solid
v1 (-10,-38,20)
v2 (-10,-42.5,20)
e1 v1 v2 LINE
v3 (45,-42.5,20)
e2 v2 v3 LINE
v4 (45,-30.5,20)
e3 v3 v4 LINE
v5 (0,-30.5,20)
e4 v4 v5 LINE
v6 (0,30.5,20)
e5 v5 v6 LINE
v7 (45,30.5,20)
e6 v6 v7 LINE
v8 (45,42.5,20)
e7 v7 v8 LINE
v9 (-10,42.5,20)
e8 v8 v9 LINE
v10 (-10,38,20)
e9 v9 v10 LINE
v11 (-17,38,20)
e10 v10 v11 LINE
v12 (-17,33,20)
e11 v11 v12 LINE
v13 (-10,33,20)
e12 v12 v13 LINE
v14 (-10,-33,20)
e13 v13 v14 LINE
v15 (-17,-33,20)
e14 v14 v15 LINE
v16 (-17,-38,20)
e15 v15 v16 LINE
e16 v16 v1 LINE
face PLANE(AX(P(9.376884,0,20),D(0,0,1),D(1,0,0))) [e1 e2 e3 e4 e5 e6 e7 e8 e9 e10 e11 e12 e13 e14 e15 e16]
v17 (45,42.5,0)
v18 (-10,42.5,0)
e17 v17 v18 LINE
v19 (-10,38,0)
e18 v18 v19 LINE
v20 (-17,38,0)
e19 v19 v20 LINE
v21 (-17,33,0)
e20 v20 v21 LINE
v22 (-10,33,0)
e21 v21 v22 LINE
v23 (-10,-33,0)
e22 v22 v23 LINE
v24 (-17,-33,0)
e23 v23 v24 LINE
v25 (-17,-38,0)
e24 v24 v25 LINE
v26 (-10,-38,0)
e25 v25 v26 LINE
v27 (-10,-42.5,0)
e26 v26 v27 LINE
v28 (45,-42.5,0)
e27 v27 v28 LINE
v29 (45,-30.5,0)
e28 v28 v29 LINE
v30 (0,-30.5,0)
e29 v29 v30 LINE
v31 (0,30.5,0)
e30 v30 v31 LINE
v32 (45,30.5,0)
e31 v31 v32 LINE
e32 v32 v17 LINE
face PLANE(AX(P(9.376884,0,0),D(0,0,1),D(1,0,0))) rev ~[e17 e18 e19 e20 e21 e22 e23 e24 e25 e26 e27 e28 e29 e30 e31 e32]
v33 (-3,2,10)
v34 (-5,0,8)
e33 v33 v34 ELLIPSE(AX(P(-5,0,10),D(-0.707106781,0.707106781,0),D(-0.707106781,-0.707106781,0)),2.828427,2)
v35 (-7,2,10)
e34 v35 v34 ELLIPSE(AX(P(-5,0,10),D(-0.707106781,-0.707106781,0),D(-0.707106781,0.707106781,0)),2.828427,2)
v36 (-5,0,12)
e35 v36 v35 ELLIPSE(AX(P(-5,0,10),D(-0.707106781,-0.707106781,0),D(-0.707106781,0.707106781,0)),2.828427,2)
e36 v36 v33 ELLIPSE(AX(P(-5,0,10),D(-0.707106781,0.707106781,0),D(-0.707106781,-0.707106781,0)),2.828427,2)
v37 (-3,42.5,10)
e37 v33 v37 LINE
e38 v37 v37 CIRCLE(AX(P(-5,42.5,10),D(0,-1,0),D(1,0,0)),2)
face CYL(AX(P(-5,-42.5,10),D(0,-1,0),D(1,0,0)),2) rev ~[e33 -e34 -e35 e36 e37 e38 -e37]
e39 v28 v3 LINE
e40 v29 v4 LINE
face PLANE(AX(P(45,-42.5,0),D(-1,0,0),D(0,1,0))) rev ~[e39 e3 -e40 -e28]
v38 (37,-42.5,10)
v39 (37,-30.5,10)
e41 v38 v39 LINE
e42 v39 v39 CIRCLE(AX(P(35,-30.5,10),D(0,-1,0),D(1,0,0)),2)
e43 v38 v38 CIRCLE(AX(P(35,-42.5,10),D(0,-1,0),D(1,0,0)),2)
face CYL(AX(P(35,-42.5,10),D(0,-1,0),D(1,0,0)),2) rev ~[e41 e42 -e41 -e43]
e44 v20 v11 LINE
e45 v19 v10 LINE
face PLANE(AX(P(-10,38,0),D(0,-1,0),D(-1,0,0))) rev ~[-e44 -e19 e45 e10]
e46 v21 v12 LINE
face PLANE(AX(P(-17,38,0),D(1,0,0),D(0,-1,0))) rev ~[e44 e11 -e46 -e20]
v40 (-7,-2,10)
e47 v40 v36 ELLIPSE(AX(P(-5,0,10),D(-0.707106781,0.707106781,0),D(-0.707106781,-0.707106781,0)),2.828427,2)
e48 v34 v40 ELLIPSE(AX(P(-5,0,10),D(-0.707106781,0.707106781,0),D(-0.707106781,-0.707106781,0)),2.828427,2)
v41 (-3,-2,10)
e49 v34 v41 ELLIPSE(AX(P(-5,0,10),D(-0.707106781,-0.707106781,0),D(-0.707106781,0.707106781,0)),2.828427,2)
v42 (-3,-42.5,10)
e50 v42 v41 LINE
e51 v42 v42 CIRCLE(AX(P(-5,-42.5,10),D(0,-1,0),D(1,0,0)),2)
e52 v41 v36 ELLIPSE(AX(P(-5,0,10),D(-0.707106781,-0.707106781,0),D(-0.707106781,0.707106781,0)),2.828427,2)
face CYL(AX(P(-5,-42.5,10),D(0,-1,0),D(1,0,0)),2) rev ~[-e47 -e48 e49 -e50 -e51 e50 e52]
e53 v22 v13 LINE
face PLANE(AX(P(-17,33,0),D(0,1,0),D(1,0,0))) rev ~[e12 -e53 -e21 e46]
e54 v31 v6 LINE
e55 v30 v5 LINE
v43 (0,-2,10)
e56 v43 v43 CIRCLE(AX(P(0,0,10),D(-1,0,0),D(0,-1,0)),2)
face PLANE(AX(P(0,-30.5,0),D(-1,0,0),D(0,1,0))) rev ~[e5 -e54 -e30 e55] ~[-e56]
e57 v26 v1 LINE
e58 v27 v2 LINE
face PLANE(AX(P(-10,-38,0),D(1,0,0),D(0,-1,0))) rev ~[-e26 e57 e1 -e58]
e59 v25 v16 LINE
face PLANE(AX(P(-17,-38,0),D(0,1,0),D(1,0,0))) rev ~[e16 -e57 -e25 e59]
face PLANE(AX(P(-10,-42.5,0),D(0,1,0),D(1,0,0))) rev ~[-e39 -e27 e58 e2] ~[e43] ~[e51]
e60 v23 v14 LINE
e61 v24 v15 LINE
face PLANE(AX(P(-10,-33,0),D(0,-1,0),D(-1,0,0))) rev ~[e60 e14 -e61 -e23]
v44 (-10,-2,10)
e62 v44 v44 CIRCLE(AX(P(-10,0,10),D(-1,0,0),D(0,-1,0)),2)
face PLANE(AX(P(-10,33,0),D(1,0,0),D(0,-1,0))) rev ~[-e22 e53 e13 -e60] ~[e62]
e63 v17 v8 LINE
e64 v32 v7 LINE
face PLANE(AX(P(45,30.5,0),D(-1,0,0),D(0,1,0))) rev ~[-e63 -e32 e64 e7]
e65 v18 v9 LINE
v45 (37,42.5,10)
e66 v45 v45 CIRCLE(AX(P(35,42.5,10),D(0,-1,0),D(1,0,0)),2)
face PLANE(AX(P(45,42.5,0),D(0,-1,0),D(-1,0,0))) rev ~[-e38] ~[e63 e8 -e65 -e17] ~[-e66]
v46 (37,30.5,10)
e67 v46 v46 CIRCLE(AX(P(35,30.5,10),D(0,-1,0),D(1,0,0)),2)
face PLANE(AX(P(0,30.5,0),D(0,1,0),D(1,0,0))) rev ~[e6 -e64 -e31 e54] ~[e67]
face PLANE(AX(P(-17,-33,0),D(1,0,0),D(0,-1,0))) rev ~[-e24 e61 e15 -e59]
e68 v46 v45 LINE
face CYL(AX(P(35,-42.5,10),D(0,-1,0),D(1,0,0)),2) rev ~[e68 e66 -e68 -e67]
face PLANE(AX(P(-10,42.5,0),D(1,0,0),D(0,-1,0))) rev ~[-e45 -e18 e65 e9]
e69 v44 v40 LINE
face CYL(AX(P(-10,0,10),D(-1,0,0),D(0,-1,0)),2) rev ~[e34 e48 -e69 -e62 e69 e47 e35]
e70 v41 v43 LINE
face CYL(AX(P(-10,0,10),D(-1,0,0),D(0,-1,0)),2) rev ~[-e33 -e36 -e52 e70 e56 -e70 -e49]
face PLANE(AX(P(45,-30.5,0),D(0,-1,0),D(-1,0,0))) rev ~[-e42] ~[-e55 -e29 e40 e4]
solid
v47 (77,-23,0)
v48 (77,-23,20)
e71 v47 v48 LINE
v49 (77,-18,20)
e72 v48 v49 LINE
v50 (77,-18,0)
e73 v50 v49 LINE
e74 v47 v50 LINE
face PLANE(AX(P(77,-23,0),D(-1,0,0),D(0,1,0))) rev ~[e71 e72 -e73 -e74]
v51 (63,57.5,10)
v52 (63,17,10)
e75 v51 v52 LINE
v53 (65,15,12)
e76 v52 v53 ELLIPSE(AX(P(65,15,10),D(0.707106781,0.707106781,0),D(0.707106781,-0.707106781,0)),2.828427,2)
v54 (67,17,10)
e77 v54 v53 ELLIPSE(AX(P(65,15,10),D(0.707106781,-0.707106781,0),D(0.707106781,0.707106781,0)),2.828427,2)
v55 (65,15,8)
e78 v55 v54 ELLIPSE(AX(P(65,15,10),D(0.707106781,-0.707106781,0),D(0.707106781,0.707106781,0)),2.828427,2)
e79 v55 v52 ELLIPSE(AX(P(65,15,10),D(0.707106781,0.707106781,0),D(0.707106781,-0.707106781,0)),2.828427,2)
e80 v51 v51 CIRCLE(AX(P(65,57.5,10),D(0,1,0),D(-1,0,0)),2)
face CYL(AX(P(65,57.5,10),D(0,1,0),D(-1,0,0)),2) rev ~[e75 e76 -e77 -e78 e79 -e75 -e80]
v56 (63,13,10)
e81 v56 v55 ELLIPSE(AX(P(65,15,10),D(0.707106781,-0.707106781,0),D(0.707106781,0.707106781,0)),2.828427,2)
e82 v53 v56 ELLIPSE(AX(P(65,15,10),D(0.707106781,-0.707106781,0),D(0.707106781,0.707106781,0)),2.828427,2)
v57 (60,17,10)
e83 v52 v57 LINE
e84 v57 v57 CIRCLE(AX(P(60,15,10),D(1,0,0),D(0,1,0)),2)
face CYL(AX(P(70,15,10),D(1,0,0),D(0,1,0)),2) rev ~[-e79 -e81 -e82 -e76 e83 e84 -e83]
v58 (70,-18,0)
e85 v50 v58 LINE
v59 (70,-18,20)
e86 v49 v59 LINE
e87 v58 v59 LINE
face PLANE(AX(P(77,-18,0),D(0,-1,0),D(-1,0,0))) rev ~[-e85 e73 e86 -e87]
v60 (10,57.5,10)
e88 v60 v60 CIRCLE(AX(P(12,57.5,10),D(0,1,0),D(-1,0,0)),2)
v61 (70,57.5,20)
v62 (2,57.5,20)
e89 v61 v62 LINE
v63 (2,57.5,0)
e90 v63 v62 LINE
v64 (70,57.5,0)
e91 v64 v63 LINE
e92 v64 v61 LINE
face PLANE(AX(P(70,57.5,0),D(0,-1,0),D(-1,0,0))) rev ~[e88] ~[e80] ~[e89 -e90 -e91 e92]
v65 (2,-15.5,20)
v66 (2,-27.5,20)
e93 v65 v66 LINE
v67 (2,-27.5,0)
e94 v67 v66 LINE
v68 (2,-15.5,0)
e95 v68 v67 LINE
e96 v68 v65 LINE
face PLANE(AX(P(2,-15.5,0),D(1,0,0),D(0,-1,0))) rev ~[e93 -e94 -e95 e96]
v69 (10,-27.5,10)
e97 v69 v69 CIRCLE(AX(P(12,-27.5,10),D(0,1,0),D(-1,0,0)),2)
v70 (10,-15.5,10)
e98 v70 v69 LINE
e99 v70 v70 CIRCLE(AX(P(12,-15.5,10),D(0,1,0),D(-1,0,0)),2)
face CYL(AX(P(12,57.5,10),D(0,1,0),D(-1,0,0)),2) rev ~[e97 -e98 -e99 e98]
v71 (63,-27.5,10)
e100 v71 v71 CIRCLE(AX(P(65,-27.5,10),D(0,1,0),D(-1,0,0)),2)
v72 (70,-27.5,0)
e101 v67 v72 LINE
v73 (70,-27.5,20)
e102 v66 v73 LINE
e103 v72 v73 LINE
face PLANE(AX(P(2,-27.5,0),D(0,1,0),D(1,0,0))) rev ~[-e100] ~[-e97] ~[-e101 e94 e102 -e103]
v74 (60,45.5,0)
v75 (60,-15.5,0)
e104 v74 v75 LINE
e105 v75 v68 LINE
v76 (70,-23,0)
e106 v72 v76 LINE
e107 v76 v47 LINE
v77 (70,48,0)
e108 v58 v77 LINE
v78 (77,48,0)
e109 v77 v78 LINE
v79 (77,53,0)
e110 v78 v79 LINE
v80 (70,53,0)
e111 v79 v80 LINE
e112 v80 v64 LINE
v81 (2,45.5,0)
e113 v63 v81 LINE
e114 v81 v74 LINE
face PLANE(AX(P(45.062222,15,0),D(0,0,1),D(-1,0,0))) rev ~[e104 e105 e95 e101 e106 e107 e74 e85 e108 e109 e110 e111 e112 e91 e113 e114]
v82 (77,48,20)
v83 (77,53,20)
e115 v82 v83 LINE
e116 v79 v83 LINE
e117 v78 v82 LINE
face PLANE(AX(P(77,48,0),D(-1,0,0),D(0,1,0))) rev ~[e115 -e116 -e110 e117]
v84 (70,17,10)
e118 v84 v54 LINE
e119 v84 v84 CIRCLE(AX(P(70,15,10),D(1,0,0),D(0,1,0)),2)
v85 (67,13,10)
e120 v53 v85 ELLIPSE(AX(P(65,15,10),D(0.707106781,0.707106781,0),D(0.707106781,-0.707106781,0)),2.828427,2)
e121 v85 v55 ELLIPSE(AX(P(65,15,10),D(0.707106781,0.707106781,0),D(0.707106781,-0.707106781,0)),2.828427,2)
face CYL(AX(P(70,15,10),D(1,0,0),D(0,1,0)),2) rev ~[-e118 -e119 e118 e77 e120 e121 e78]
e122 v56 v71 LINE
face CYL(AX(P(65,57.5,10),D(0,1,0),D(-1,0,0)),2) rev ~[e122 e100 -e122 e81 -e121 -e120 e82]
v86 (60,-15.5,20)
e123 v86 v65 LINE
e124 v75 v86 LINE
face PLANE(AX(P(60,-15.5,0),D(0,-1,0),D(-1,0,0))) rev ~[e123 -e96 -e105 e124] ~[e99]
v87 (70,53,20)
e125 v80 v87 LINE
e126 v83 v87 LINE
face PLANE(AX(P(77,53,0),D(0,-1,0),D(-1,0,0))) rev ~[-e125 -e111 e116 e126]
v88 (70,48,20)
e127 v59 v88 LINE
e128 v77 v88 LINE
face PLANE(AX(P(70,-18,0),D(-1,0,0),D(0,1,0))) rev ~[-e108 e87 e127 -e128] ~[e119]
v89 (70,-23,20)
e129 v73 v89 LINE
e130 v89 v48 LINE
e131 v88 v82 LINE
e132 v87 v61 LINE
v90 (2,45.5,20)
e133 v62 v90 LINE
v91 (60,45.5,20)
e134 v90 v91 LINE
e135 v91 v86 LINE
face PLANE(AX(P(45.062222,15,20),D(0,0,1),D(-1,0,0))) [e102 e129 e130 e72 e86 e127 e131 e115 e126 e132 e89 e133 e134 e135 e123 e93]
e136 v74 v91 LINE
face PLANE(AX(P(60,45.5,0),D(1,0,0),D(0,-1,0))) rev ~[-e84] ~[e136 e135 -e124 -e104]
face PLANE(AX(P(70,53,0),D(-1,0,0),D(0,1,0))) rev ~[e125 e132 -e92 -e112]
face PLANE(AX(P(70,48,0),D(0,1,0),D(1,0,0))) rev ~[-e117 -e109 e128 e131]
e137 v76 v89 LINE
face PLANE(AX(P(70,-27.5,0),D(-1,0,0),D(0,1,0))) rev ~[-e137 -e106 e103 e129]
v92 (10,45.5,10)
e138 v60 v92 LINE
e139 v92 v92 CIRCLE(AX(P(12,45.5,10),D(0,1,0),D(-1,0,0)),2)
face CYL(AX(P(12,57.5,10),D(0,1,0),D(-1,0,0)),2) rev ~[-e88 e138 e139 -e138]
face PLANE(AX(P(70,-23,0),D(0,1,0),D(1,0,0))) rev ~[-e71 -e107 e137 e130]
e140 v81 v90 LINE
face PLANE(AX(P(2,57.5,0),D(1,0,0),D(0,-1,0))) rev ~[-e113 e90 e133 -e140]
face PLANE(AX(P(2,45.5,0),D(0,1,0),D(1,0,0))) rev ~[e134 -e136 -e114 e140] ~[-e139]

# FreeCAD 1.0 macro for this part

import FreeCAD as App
import Part
import Sketcher


def add_polygon(sketch, points):
    """Adds a closed chain of lines whose ends are joined by coincident constraints."""
    first, n = sketch.GeometryCount, len(points)
    for a, b in zip(points, points[1:] + points[:1]):
        sketch.addGeometry(Part.LineSegment(App.Vector(*a, 0), App.Vector(*b, 0)), False)
    for i in range(n):
        sketch.addConstraint(Sketcher.Constraint("Coincident", first + i, 2, first + (i + 1) % n, 1))

doc = App.newDocument("Part")
body = doc.addObject("PartDesign::Body", "Body")

# Sketch on XY plane
sketch1 = body.newObject("Sketcher::SketchObject", "Sketch")
sketch1.AttachmentSupport = (doc.getObject("XY_Plane"), [""])
sketch1.MapMode = "FlatFace"
add_polygon(sketch1, [(-10, -42.5), (45, -42.5), (45, -30.5), (0, -30.5), (0, 30.5), (45, 30.5), (45, 42.5), (-10, 42.5), (-10, 38), (-17, 38), (-17, 33), (-10, 33), (-10, -33), (-17, -33), (-17, -38), (-10, -38)])  # lines 0-15
sketch1.addConstraint(Sketcher.Constraint("Horizontal", 0))
sketch1.addConstraint(Sketcher.Constraint("Vertical", 1))
sketch1.addConstraint(Sketcher.Constraint("Horizontal", 2))
sketch1.addConstraint(Sketcher.Constraint("Vertical", 3))
sketch1.addConstraint(Sketcher.Constraint("Horizontal", 4))
sketch1.addConstraint(Sketcher.Constraint("Vertical", 5))
sketch1.addConstraint(Sketcher.Constraint("Horizontal", 6))
sketch1.addConstraint(Sketcher.Constraint("Vertical", 7))
sketch1.addConstraint(Sketcher.Constraint("Horizontal", 8))
sketch1.addConstraint(Sketcher.Constraint("Vertical", 9))
sketch1.addConstraint(Sketcher.Constraint("Horizontal", 10))
sketch1.addConstraint(Sketcher.Constraint("Vertical", 11))
sketch1.addConstraint(Sketcher.Constraint("Horizontal", 12))
sketch1.addConstraint(Sketcher.Constraint("Vertical", 13))
sketch1.addConstraint(Sketcher.Constraint("Horizontal", 14))
sketch1.addConstraint(Sketcher.Constraint("Vertical", 15))
sketch1.addConstraint(Sketcher.Constraint("Symmetric", 2, 2, 3, 2, -1, 1))
sketch1.addConstraint(Sketcher.Constraint("Symmetric", 0, 2, 5, 2, -1))
sketch1.addConstraint(Sketcher.Constraint("Symmetric", 9, 2, 12, 2, -1))
sketch1.addConstraint(Sketcher.Constraint("Symmetric", 7, 2, 14, 2, -1))
sketch1.addConstraint(Sketcher.Constraint("Vertical", 7, 2, 10, 2))
sketch1.addConstraint(Sketcher.Constraint("DistanceX", 0, 1, 0, 2, 55.0))
sketch1.addConstraint(Sketcher.Constraint("DistanceX", 2, 2, 2, 1, 45.0))
sketch1.addConstraint(Sketcher.Constraint("DistanceX", 8, 2, 8, 1, 7.0))
sketch1.addConstraint(Sketcher.Constraint("DistanceY", 1, 1, 1, 2, 12.0))
sketch1.addConstraint(Sketcher.Constraint("DistanceY", 3, 1, 3, 2, 61.0))
sketch1.addConstraint(Sketcher.Constraint("DistanceY", 9, 2, 9, 1, 5.0))
sketch1.addConstraint(Sketcher.Constraint("DistanceY", 11, 2, 11, 1, 66.0))
pad1 = body.newObject("PartDesign::Pad", "Pad")
pad1.Profile = sketch1
pad1.Length = 20

# Sketch on YZ plane
sketch2 = body.newObject("Sketcher::SketchObject", "Sketch001")
sketch2.AttachmentSupport = (doc.getObject("YZ_Plane"), [""])
sketch2.MapMode = "FlatFace"
sketch2.AttachmentOffset = App.Placement(App.Vector(0, 0, -10), App.Rotation())
sketch2.addGeometry(Part.Circle(App.Vector(0, 10, 0), App.Vector(0, 0, 1), 2), False)
sketch2.addConstraint(Sketcher.Constraint("PointOnObject", 0, 3, -2))
sketch2.addConstraint(Sketcher.Constraint("Diameter", 0, 4.0))
sketch2.addConstraint(Sketcher.Constraint("DistanceY", -1, 1, 0, 3, 10.0))
pocket1 = body.newObject("PartDesign::Pocket", "Pocket")
pocket1.Profile = sketch2
pocket1.Type = "ThroughAll"
pocket1.Reversed = True

# Sketch on XZ plane
sketch3 = body.newObject("Sketcher::SketchObject", "Sketch002")
sketch3.AttachmentSupport = (doc.getObject("XZ_Plane"), [""])
sketch3.MapMode = "FlatFace"
sketch3.AttachmentOffset = App.Placement(App.Vector(0, 0, 42.5), App.Rotation())
sketch3.addGeometry(Part.Circle(App.Vector(-5, 10, 0), App.Vector(0, 0, 1), 2), False)
sketch3.addGeometry(Part.Circle(App.Vector(35, 10, 0), App.Vector(0, 0, 1), 2), False)
sketch3.addConstraint(Sketcher.Constraint("Equal", 0, 1))
sketch3.addConstraint(Sketcher.Constraint("Horizontal", 0, 3, 1, 3))
sketch3.addConstraint(Sketcher.Constraint("Diameter", 0, 4.0))
sketch3.addConstraint(Sketcher.Constraint("DistanceX", 0, 3, -1, 1, 5.0))
sketch3.addConstraint(Sketcher.Constraint("DistanceY", -1, 1, 0, 3, 10.0))
sketch3.addConstraint(Sketcher.Constraint("DistanceX", -1, 1, 1, 3, 35.0))
pocket2 = body.newObject("PartDesign::Pocket", "Pocket001")
pocket2.Profile = sketch3
pocket2.Type = "ThroughAll"
body2 = doc.addObject("PartDesign::Body", "Body001")

# Sketch on XY plane
sketch4 = body2.newObject("Sketcher::SketchObject", "Sketch003")
sketch4.AttachmentSupport = (doc.getObject("XY_Plane001"), [""])
sketch4.MapMode = "FlatFace"
add_polygon(sketch4, [(70, 57.5), (2, 57.5), (2, 45.5), (60, 45.5), (60, -15.5), (2, -15.5), (2, -27.5), (70, -27.5), (70, -23), (77, -23), (77, -18), (70, -18), (70, 48), (77, 48), (77, 53), (70, 53)])  # lines 0-15
sketch4.addConstraint(Sketcher.Constraint("Horizontal", 0))
sketch4.addConstraint(Sketcher.Constraint("Vertical", 1))
sketch4.addConstraint(Sketcher.Constraint("Horizontal", 2))
sketch4.addConstraint(Sketcher.Constraint("Vertical", 3))
sketch4.addConstraint(Sketcher.Constraint("Horizontal", 4))
sketch4.addConstraint(Sketcher.Constraint("Vertical", 5))
sketch4.addConstraint(Sketcher.Constraint("Horizontal", 6))
sketch4.addConstraint(Sketcher.Constraint("Vertical", 7))
sketch4.addConstraint(Sketcher.Constraint("Horizontal", 8))
sketch4.addConstraint(Sketcher.Constraint("Vertical", 9))
sketch4.addConstraint(Sketcher.Constraint("Horizontal", 10))
sketch4.addConstraint(Sketcher.Constraint("Vertical", 11))
sketch4.addConstraint(Sketcher.Constraint("Horizontal", 12))
sketch4.addConstraint(Sketcher.Constraint("Vertical", 13))
sketch4.addConstraint(Sketcher.Constraint("Horizontal", 14))
sketch4.addConstraint(Sketcher.Constraint("Vertical", 15))
sketch4.addConstraint(Sketcher.Constraint("Vertical", 1, 2, 4, 2))
sketch4.addConstraint(Sketcher.Constraint("Vertical", 7, 2, 10, 2))
sketch4.addConstraint(Sketcher.Constraint("Vertical", 9, 2, 12, 2))
sketch4.addConstraint(Sketcher.Constraint("Vertical", 11, 2, 14, 2))
sketch4.addConstraint(Sketcher.Constraint("Equal", 1, 5))
sketch4.addConstraint(Sketcher.Constraint("Equal", 9, 13))
sketch4.addConstraint(Sketcher.Constraint("Equal", 7, 15))
sketch4.addConstraint(Sketcher.Constraint("DistanceX", 0, 2, 0, 1, 68.0))
sketch4.addConstraint(Sketcher.Constraint("DistanceX", 2, 1, 2, 2, 58.0))
sketch4.addConstraint(Sketcher.Constraint("DistanceX", 8, 1, 8, 2, 7.0))
sketch4.addConstraint(Sketcher.Constraint("DistanceY", 1, 2, 1, 1, 12.0))
sketch4.addConstraint(Sketcher.Constraint("DistanceY", 3, 2, 3, 1, 61.0))
sketch4.addConstraint(Sketcher.Constraint("DistanceY", 9, 1, 9, 2, 5.0))
sketch4.addConstraint(Sketcher.Constraint("DistanceY", 11, 1, 11, 2, 66.0))
sketch4.addConstraint(Sketcher.Constraint("DistanceX", -1, 1, 0, 2, 2.0))
sketch4.addConstraint(Sketcher.Constraint("DistanceY", 7, 2, -1, 1, 23.0))
pad2 = body2.newObject("PartDesign::Pad", "Pad001")
pad2.Profile = sketch4
pad2.Length = 20

# Sketch on YZ plane
sketch5 = body2.newObject("Sketcher::SketchObject", "Sketch004")
sketch5.AttachmentSupport = (doc.getObject("YZ_Plane001"), [""])
sketch5.MapMode = "FlatFace"
sketch5.AttachmentOffset = App.Placement(App.Vector(0, 0, 70), App.Rotation())
sketch5.addGeometry(Part.Circle(App.Vector(15, 10, 0), App.Vector(0, 0, 1), 2), False)
sketch5.addConstraint(Sketcher.Constraint("Diameter", 0, 4.0))
sketch5.addConstraint(Sketcher.Constraint("DistanceX", -1, 1, 0, 3, 15.0))
sketch5.addConstraint(Sketcher.Constraint("DistanceY", -1, 1, 0, 3, 10.0))
pocket3 = body2.newObject("PartDesign::Pocket", "Pocket002")
pocket3.Profile = sketch5
pocket3.Type = "ThroughAll"

# Sketch on XZ plane
sketch6 = body2.newObject("Sketcher::SketchObject", "Sketch005")
sketch6.AttachmentSupport = (doc.getObject("XZ_Plane001"), [""])
sketch6.MapMode = "FlatFace"
sketch6.AttachmentOffset = App.Placement(App.Vector(0, 0, -57.5), App.Rotation())
sketch6.addGeometry(Part.Circle(App.Vector(65, 10, 0), App.Vector(0, 0, 1), 2), False)
sketch6.addGeometry(Part.Circle(App.Vector(12, 10, 0), App.Vector(0, 0, 1), 2), False)
sketch6.addConstraint(Sketcher.Constraint("Equal", 0, 1))
sketch6.addConstraint(Sketcher.Constraint("Horizontal", 0, 3, 1, 3))
sketch6.addConstraint(Sketcher.Constraint("Diameter", 0, 4.0))
sketch6.addConstraint(Sketcher.Constraint("DistanceX", -1, 1, 0, 3, 65.0))
sketch6.addConstraint(Sketcher.Constraint("DistanceY", -1, 1, 0, 3, 10.0))
sketch6.addConstraint(Sketcher.Constraint("DistanceX", -1, 1, 1, 3, 12.0))
pocket4 = body2.newObject("PartDesign::Pocket", "Pocket003")
pocket4.Profile = sketch6
pocket4.Type = "ThroughAll"
pocket4.Reversed = True

doc.recompute()
